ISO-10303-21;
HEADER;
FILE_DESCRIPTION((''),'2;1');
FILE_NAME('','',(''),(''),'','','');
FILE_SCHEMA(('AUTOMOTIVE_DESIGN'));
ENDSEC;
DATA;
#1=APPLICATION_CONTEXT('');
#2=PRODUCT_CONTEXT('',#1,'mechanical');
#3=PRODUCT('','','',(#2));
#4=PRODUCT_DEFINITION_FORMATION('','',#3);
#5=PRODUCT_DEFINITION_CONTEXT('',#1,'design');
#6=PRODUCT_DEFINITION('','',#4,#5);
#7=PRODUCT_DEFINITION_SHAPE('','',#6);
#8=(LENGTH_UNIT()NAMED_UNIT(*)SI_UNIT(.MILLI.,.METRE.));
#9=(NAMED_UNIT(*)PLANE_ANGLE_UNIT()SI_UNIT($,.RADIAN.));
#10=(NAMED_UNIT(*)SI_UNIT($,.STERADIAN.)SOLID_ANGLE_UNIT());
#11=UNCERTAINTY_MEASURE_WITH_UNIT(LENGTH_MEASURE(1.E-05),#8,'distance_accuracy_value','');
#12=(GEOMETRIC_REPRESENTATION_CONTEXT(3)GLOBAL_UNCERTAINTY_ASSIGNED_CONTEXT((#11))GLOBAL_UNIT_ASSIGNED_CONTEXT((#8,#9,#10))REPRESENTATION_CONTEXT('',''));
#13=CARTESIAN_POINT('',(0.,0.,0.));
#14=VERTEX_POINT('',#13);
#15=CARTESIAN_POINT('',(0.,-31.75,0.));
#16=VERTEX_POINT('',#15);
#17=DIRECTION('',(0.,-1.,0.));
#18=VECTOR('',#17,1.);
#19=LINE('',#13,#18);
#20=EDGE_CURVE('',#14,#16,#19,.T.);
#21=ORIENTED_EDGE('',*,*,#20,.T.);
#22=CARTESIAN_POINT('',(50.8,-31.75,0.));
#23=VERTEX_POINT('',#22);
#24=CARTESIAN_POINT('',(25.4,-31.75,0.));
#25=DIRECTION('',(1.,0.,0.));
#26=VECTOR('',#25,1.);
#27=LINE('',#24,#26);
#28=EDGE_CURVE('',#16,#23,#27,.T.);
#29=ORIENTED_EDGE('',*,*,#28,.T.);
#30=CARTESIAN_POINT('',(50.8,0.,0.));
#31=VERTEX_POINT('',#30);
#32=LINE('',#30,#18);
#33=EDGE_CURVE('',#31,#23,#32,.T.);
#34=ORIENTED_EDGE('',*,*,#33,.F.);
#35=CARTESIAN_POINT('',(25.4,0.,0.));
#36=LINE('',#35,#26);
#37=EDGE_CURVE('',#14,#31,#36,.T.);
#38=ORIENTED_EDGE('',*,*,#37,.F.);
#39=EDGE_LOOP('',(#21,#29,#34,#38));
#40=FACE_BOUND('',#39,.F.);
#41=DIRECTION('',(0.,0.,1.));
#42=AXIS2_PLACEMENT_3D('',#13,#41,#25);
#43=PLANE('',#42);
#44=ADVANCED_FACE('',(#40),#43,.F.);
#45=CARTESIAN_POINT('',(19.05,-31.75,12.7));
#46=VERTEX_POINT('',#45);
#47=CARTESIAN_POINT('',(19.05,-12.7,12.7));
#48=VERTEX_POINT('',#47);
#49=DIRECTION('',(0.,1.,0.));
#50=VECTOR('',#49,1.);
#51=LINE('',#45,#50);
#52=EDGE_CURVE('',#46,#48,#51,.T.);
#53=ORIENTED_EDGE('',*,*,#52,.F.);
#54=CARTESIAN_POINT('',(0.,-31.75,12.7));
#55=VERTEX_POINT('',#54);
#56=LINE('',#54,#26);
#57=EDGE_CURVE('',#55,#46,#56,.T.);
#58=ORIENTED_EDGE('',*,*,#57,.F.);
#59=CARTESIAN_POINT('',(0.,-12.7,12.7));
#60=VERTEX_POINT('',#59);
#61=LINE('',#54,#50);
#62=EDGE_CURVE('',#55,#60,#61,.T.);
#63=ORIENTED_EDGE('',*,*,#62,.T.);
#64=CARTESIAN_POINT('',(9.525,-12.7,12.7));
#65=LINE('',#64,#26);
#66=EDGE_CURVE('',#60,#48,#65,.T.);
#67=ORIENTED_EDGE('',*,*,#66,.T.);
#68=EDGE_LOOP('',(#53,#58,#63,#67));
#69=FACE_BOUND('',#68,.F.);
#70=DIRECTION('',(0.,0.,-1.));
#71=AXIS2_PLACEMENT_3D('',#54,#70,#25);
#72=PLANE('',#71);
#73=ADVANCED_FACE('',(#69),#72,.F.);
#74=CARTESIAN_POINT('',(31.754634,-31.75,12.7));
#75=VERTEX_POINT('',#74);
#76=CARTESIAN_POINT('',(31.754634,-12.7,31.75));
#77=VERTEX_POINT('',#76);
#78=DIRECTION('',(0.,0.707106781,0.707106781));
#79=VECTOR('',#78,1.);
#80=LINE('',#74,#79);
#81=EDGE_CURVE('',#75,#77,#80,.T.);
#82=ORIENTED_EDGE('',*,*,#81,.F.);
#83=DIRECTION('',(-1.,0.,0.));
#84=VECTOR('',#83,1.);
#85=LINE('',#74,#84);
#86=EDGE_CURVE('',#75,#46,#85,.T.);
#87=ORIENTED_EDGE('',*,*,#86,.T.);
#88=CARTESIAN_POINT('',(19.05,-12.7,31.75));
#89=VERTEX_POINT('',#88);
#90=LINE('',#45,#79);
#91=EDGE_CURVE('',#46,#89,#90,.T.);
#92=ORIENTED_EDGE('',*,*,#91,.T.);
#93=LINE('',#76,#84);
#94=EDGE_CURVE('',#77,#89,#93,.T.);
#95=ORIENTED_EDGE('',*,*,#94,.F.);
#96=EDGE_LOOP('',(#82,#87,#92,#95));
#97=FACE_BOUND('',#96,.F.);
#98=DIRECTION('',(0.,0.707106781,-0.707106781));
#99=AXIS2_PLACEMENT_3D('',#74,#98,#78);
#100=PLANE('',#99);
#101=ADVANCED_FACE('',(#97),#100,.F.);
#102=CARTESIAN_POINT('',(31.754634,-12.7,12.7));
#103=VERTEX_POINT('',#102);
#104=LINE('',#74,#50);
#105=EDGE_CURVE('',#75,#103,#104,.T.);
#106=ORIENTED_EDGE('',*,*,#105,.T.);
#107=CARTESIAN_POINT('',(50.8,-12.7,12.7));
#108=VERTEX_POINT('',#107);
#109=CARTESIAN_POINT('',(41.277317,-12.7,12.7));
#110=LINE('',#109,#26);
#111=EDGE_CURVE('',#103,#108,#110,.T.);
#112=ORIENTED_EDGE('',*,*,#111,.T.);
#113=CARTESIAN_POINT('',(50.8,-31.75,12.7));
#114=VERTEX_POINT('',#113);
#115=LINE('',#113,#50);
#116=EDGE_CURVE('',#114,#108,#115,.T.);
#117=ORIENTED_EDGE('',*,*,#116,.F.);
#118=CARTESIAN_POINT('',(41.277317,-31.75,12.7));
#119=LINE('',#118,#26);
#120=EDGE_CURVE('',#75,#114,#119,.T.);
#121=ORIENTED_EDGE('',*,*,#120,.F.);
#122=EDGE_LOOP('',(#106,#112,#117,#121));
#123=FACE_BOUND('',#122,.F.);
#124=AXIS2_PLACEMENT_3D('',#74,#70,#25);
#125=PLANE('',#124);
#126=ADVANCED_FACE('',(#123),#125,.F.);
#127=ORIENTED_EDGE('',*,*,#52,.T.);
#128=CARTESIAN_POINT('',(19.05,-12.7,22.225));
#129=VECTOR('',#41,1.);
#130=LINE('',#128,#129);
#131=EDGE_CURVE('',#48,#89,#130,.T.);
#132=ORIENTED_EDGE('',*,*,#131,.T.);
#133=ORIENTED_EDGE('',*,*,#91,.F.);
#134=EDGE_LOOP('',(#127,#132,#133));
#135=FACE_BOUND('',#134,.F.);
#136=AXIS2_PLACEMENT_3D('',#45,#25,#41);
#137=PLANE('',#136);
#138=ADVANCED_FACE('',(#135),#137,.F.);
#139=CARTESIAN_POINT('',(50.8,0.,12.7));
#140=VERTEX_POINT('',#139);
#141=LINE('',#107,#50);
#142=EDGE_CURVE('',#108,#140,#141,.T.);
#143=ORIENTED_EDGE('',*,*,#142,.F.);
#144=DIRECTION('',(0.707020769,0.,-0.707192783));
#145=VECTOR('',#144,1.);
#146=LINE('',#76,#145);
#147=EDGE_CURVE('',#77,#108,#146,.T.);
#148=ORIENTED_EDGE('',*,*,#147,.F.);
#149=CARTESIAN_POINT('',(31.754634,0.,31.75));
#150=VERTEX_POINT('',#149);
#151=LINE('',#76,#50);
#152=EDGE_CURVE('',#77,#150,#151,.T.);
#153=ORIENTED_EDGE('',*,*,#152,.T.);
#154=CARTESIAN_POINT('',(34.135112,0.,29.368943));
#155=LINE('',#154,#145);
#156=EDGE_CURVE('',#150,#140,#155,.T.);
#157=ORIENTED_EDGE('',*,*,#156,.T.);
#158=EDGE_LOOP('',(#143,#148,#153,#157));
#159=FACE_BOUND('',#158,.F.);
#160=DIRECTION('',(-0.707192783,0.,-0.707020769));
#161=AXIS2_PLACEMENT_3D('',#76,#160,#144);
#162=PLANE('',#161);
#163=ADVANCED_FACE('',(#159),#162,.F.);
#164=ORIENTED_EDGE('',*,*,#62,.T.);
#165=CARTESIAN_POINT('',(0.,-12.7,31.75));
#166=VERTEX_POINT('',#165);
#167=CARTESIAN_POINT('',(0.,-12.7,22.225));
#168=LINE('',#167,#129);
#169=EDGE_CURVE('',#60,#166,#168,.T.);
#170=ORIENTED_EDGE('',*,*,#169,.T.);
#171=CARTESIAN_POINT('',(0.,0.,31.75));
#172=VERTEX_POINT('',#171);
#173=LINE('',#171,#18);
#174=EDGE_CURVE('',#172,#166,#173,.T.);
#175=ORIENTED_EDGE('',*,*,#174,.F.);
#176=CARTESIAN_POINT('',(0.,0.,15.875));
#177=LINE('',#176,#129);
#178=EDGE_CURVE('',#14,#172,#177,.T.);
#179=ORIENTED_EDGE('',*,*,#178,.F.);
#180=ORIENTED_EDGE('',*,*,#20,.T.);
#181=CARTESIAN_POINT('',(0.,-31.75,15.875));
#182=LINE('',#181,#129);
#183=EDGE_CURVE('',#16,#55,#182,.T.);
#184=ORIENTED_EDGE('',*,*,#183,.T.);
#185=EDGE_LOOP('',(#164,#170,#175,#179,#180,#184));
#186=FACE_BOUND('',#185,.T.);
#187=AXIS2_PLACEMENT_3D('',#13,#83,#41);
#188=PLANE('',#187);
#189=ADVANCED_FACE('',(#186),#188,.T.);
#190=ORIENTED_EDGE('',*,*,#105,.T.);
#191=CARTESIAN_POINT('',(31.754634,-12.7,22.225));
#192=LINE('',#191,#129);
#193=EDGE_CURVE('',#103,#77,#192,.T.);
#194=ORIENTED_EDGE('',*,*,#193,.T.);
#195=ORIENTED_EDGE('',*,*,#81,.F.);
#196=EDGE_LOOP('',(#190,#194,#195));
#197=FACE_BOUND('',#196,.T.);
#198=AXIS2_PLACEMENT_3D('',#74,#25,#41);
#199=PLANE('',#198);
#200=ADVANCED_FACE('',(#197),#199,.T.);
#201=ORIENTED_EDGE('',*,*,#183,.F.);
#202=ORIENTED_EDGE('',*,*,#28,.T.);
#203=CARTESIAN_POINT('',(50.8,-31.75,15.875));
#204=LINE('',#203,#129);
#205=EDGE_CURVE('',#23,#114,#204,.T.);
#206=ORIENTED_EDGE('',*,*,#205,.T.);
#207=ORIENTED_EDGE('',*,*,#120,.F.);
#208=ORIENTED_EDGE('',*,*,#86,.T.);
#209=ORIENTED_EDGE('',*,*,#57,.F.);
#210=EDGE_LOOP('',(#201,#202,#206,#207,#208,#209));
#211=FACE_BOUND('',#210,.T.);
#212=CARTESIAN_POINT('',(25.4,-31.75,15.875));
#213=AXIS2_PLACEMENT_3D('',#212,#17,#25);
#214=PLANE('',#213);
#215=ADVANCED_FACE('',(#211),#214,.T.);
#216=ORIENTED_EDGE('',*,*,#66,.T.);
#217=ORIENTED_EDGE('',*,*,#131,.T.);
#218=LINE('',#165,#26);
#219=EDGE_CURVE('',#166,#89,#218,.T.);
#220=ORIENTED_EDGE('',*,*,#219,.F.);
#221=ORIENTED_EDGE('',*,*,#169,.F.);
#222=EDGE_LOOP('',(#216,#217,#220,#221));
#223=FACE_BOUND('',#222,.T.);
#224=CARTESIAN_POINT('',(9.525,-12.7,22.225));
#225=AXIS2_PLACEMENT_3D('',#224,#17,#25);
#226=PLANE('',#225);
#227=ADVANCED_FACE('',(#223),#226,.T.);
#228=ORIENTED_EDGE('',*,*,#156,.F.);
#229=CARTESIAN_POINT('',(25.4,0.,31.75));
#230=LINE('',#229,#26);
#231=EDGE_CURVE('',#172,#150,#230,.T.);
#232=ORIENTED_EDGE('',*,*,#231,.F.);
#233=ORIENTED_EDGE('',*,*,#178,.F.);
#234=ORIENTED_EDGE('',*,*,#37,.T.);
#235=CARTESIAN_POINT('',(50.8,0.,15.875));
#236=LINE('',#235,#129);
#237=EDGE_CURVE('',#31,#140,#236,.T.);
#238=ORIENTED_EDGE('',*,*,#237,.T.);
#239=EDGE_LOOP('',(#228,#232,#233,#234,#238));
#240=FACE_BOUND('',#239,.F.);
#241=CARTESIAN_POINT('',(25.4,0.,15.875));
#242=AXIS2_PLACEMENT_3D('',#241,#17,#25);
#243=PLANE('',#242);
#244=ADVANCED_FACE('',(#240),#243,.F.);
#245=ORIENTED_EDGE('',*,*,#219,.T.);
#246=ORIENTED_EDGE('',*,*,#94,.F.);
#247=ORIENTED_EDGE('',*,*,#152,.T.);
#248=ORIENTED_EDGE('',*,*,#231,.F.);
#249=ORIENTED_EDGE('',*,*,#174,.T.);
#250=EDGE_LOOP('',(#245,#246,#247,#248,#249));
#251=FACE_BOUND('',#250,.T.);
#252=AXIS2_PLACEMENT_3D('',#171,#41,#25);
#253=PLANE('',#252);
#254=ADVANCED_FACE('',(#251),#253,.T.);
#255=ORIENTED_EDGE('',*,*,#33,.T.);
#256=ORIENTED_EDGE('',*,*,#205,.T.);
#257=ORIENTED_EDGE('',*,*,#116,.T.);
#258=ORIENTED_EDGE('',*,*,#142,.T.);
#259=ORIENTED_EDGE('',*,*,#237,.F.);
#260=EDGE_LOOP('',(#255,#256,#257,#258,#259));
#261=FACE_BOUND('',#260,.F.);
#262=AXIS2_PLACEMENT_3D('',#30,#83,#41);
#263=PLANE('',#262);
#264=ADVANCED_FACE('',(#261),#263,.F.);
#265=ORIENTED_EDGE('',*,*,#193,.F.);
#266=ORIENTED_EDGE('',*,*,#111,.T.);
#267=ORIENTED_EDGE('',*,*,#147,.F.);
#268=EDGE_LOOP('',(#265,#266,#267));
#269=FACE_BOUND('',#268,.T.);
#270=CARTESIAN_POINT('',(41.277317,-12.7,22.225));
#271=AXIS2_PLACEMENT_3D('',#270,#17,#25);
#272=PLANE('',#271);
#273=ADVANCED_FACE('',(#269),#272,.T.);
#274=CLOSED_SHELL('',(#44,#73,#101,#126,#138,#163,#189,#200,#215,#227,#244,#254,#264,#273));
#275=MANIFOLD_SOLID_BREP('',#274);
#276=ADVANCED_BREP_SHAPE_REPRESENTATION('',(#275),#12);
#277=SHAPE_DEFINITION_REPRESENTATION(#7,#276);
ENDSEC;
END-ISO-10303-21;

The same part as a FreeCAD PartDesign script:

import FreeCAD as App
import Part
import Sketcher
from FreeCAD import Vector
Q = App.Units.Quantity

doc = App.newDocument("Part")
params = doc.addObject("Spreadsheet::Sheet", "Params")
for row, (alias, value) in enumerate([
    ("sketch1_width", "2 in"),
    ("sketch1_height", "1.25 in"),
    ("pad1_length", "1.25 in"),
    ("sketch2_width", "0.75 in"),
    ("pocket1_length", "0.75 in"),
    ("sketch3_height", "0.75 in"),
    ("pocket2_length", "0.75 in"),
    ("sketch4_width", "0.75 in"),
    ("pocket3_length", "1 in"),
    ("sketch5_height", "0.75 in"),
    ("pocket4_length", "1 in"),
], start=1):
    params.set(f"A{row}", alias)
    params.set(f"B{row}", "=" + value)
    params.setAlias(f"B{row}", alias)

body = doc.addObject("PartDesign::Body", "Body")

# Sketch on XZ plane
sketch1 = body.newObject("Sketcher::SketchObject", "Sketch")
sketch1.AttachmentSupport = (doc.getObject("XZ_Plane"), [""])
sketch1.MapMode = "FlatFace"
sketch1.addGeometry([
    Part.LineSegment(Vector(0, 32, 0), Vector(0, 0, 0)),
    Part.LineSegment(Vector(0, 0, 0), Vector(51, 0, 0)),
    Part.LineSegment(Vector(51, 0, 0), Vector(51, 32, 0)),
    Part.LineSegment(Vector(51, 32, 0), Vector(0, 32, 0)),
], False)
sketch1.addConstraint([
    Sketcher.Constraint("Coincident", 0, 2, 1, 1),
    Sketcher.Constraint("Coincident", 1, 2, 2, 1),
    Sketcher.Constraint("Coincident", 2, 2, 3, 1),
    Sketcher.Constraint("Coincident", 3, 2, 0, 1),
    Sketcher.Constraint("Vertical", 0),
    Sketcher.Constraint("Horizontal", 1),
    Sketcher.Constraint("Vertical", 2),
    Sketcher.Constraint("Horizontal", 3),
    Sketcher.Constraint("Coincident", 0, 2, -1, 1),
    Sketcher.Constraint("DistanceX", 1, 1, 1, 2, Q("2 in")),
    Sketcher.Constraint("DistanceY", 0, 2, 0, 1, Q("1.25 in")),
])
sketch1.setExpression("Constraints[9]", "Params.sketch1_width")
sketch1.setExpression("Constraints[10]", "Params.sketch1_height")
pad1 = body.newObject("PartDesign::Pad", "Pad")
pad1.Profile = sketch1
pad1.setExpression("Length", "Params.pad1_length")

# Sketch on XZ plane
sketch2 = body.newObject("Sketcher::SketchObject", "Sketch001")
sketch2.AttachmentSupport = (doc.getObject("XZ_Plane"), [""])
sketch2.MapMode = "FlatFace"
sketch2.AttachmentOffset = App.Placement(Vector(0, 0, 1.25 * 25.4), App.Rotation())
sketch2.addGeometry([
    Part.LineSegment(Vector(0, 32, 0), Vector(0, 13, 0)),
    Part.LineSegment(Vector(0, 13, 0), Vector(19, 13, 0)),
    Part.LineSegment(Vector(19, 13, 0), Vector(19, 32, 0)),
    Part.LineSegment(Vector(19, 32, 0), Vector(0, 32, 0)),
], False)
sketch2.addConstraint([
    Sketcher.Constraint("Coincident", 0, 2, 1, 1),
    Sketcher.Constraint("Coincident", 1, 2, 2, 1),
    Sketcher.Constraint("Coincident", 2, 2, 3, 1),
    Sketcher.Constraint("Coincident", 3, 2, 0, 1),
    Sketcher.Constraint("Vertical", 0),
    Sketcher.Constraint("Horizontal", 1),
    Sketcher.Constraint("Vertical", 2),
    Sketcher.Constraint("Horizontal", 3),
    Sketcher.Constraint("PointOnObject", 0, 2, -2),
    Sketcher.Constraint("Equal", 3, 0),
    Sketcher.Constraint("DistanceX", 1, 1, 1, 2, Q("0.75 in")),
    Sketcher.Constraint("DistanceY", -1, 1, 0, 2, Q("0.5 in")),
])
sketch2.setExpression("Constraints[10]", "Params.sketch2_width")
pocket1 = body.newObject("PartDesign::Pocket", "Pocket")
pocket1.Profile = sketch2
pocket1.setExpression("Length", "Params.pocket1_length")

# Sketch on XZ plane
sketch3 = body.newObject("Sketcher::SketchObject", "Sketch002")
sketch3.AttachmentSupport = (doc.getObject("XZ_Plane"), [""])
sketch3.MapMode = "FlatFace"
sketch3.AttachmentOffset = App.Placement(Vector(0, 0, 1.25 * 25.4), App.Rotation())
sketch3.addGeometry([
    Part.LineSegment(Vector(32, 32, 0), Vector(32, 13, 0)),
    Part.LineSegment(Vector(32, 13, 0), Vector(51, 13, 0)),
    Part.LineSegment(Vector(51, 13, 0), Vector(51, 32, 0)),
    Part.LineSegment(Vector(51, 32, 0), Vector(32, 32, 0)),
], False)
sketch3.addConstraint([
    Sketcher.Constraint("Coincident", 0, 2, 1, 1),
    Sketcher.Constraint("Coincident", 1, 2, 2, 1),
    Sketcher.Constraint("Coincident", 2, 2, 3, 1),
    Sketcher.Constraint("Coincident", 3, 2, 0, 1),
    Sketcher.Constraint("Vertical", 0),
    Sketcher.Constraint("Horizontal", 1),
    Sketcher.Constraint("Vertical", 2),
    Sketcher.Constraint("Horizontal", 3),
    Sketcher.Constraint("DistanceX", -1, 1, 1, 2, Q("2 in")),
    Sketcher.Constraint("DistanceY", 0, 2, 0, 1, Q("0.75 in")),
    Sketcher.Constraint("DistanceY", -1, 1, 0, 2, Q("0.5 in")),
    Sketcher.Constraint("DistanceX", 1, 1, 1, 2, Q("19.045366 mm")),
])
sketch3.setExpression("Constraints[9]", "Params.sketch3_height")
pocket2 = body.newObject("PartDesign::Pocket", "Pocket001")
pocket2.Profile = sketch3
pocket2.setExpression("Length", "Params.pocket2_length")

# Sketch on YZ plane
sketch4 = body.newObject("Sketcher::SketchObject", "Sketch003")
sketch4.AttachmentSupport = (doc.getObject("YZ_Plane"), [""])
sketch4.MapMode = "FlatFace"
sketch4.AttachmentOffset = App.Placement(Vector(0, 0, 31.754634), App.Rotation())
sketch4.addGeometry([
    Part.LineSegment(Vector(-32, 32, 0), Vector(-32, 13, 0)),
    Part.LineSegment(Vector(-32, 13, 0), Vector(-13, 32, 0)),
    Part.LineSegment(Vector(-13, 32, 0), Vector(-32, 32, 0)),
], False)
sketch4.addConstraint([
    Sketcher.Constraint("Coincident", 0, 2, 1, 1),
    Sketcher.Constraint("Coincident", 1, 2, 2, 1),
    Sketcher.Constraint("Coincident", 2, 2, 0, 1),
    Sketcher.Constraint("Vertical", 0),
    Sketcher.Constraint("Horizontal", 2),
    Sketcher.Constraint("Equal", 2, 0),
    Sketcher.Constraint("DistanceX", 2, 2, 2, 1, Q("0.75 in")),
    Sketcher.Constraint("DistanceY", -1, 1, 0, 2, Q("0.5 in")),
    Sketcher.Constraint("DistanceX", 1, 2, -1, 1, Q("0.5 in")),
])
sketch4.setExpression("Constraints[6]", "Params.sketch4_width")
pocket3 = body.newObject("PartDesign::Pocket", "Pocket002")
pocket3.Profile = sketch4
pocket3.setExpression("Length", "Params.pocket3_length")

# Sketch on XZ plane
sketch5 = body.newObject("Sketcher::SketchObject", "Sketch004")
sketch5.AttachmentSupport = (doc.getObject("XZ_Plane"), [""])
sketch5.MapMode = "FlatFace"
sketch5.AttachmentOffset = App.Placement(Vector(0, 0, 0.5 * 25.4), App.Rotation())
sketch5.addGeometry([
    Part.LineSegment(Vector(51, 32, 0), Vector(32, 32, 0)),
    Part.LineSegment(Vector(32, 32, 0), Vector(51, 13, 0)),
    Part.LineSegment(Vector(51, 13, 0), Vector(51, 32, 0)),
], False)
sketch5.addConstraint([
    Sketcher.Constraint("Coincident", 0, 2, 1, 1),
    Sketcher.Constraint("Coincident", 1, 2, 2, 1),
    Sketcher.Constraint("Coincident", 2, 2, 0, 1),
    Sketcher.Constraint("Horizontal", 0),
    Sketcher.Constraint("Vertical", 2),
    Sketcher.Constraint("DistanceX", -1, 1, 1, 2, Q("2 in")),
    Sketcher.Constraint("DistanceY", 2, 1, 2, 2, Q("0.75 in")),
    Sketcher.Constraint("DistanceY", -1, 1, 1, 2, Q("0.5 in")),
    Sketcher.Constraint("DistanceX", 0, 2, 0, 1, Q("19.045366 mm")),
])
sketch5.setExpression("Constraints[6]", "Params.sketch5_height")
pocket4 = body.newObject("PartDesign::Pocket", "Pocket003")
pocket4.Profile = sketch5
pocket4.setExpression("Length", "Params.pocket4_length")

doc.recompute()
